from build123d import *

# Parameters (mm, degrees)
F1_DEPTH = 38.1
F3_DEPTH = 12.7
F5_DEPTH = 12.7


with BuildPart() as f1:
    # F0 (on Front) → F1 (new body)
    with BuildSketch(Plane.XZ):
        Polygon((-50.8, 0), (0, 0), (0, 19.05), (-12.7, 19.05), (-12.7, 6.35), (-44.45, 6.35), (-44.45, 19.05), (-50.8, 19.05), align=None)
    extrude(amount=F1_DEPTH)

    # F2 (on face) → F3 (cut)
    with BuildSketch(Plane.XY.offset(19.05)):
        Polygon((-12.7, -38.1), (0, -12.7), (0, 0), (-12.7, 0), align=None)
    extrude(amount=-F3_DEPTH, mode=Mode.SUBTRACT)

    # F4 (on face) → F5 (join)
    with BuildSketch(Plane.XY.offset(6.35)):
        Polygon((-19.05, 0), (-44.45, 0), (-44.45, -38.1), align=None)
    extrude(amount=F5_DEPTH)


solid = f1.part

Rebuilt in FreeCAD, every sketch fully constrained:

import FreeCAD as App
import Part
import Sketcher
from FreeCAD import Vector
Q = App.Units.Quantity


def add_polygon(sketch, points):
    """Adds a closed chain of lines whose ends are joined by coincident constraints."""
    first, n = sketch.GeometryCount, len(points)
    for a, b in zip(points, points[1:] + points[:1]):
        sketch.addGeometry(Part.LineSegment(App.Vector(*a, 0), App.Vector(*b, 0)), False)
    for i in range(n):
        sketch.addConstraint(Sketcher.Constraint("Coincident", first + i, 2, first + (i + 1) % n, 1))

doc = App.newDocument("Part")
body = doc.addObject("PartDesign::Body", "Body")

# Sketch on XZ plane
sketch1 = body.newObject("Sketcher::SketchObject", "Sketch")
sketch1.AttachmentSupport = (doc.getObject("XZ_Plane"), [""])
sketch1.MapMode = "FlatFace"
add_polygon(sketch1, [(-51, 0), (0, 0), (0, 19), (-13, 19), (-13, 6), (-44, 6), (-44, 19), (-51, 19)])  # lines 0-7
sketch1.addConstraint([
    Sketcher.Constraint("Horizontal", 0),
    Sketcher.Constraint("Vertical", 1),
    Sketcher.Constraint("Horizontal", 2),
    Sketcher.Constraint("Vertical", 3),
    Sketcher.Constraint("Horizontal", 4),
    Sketcher.Constraint("Vertical", 5),
    Sketcher.Constraint("Horizontal", 6),
    Sketcher.Constraint("Vertical", 7),
    Sketcher.Constraint("Coincident", 0, 2, -1, 1),
    Sketcher.Constraint("Horizontal", 2, 2, 5, 2),
    Sketcher.Constraint("Equal", 2, 3),
    Sketcher.Constraint("DistanceX", 0, 1, 0, 2, Q("2 in")),
    Sketcher.Constraint("DistanceX", 2, 2, 2, 1, Q("0.5 in")),
    Sketcher.Constraint("DistanceX", 4, 2, 4, 1, Q("1.25 in")),
    Sketcher.Constraint("DistanceY", 1, 1, 1, 2, Q("0.75 in")),
])
pad1 = body.newObject("PartDesign::Pad", "Pad")
pad1.Profile = sketch1
pad1.Length = Q("1.5 in")

# Sketch on XY plane
sketch2 = body.newObject("Sketcher::SketchObject", "Sketch001")
sketch2.AttachmentSupport = (doc.getObject("XY_Plane"), [""])
sketch2.MapMode = "FlatFace"
sketch2.AttachmentOffset = App.Placement(Vector(0, 0, 0.75 * 25.4), App.Rotation())
add_polygon(sketch2, [(-13, -38), (0, -13), (0, 0), (-13, 0)])  # lines 0-3
sketch2.addConstraint([
    Sketcher.Constraint("Vertical", 1),
    Sketcher.Constraint("Horizontal", 2),
    Sketcher.Constraint("Vertical", 3),
    Sketcher.Constraint("Coincident", 1, 2, -1, 1),
    Sketcher.Constraint("Equal", 2, 1),
    Sketcher.Constraint("DistanceX", 2, 2, 2, 1, Q("0.5 in")),
    Sketcher.Constraint("DistanceY", 3, 2, 3, 1, Q("1.5 in")),
])
pocket1 = body.newObject("PartDesign::Pocket", "Pocket")
pocket1.Profile = sketch2
pocket1.Length = Q("0.5 in")

# Sketch on XY plane
sketch3 = body.newObject("Sketcher::SketchObject", "Sketch002")
sketch3.AttachmentSupport = (doc.getObject("XY_Plane"), [""])
sketch3.MapMode = "FlatFace"
sketch3.AttachmentOffset = App.Placement(Vector(0, 0, 0.25 * 25.4), App.Rotation())
add_polygon(sketch3, [(-19, 0), (-44, 0), (-44, -38)])  # lines 0-2
sketch3.addConstraint([
    Sketcher.Constraint("Horizontal", 0),
    Sketcher.Constraint("Vertical", 1),
    Sketcher.Constraint("PointOnObject", 0, 2, -1),
    Sketcher.Constraint("DistanceX", 0, 2, 0, 1, Q("1 in")),
    Sketcher.Constraint("DistanceY", 1, 2, 1, 1, Q("1.5 in")),
    Sketcher.Constraint("DistanceX", 0, 2, -1, 1, Q("1.75 in")),
])
pad2 = body.newObject("PartDesign::Pad", "Pad001")
pad2.Profile = sketch3
pad2.Length = Q("0.5 in")

doc.recompute()
